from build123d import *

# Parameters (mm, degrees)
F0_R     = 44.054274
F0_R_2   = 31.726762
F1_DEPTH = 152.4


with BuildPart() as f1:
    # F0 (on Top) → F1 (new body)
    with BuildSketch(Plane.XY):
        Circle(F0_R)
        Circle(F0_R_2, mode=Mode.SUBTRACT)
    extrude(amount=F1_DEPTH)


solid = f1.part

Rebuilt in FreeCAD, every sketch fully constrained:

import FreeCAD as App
import Part
import Sketcher
from FreeCAD import Vector
Q = App.Units.Quantity

doc = App.newDocument("Part")
body = doc.addObject("PartDesign::Body", "Body")

# Sketch on XY plane
sketch1 = body.newObject("Sketcher::SketchObject", "Sketch")
sketch1.AttachmentSupport = (doc.getObject("XY_Plane"), [""])
sketch1.MapMode = "FlatFace"
sketch1.addGeometry([
    Part.Circle(Vector(0, 0, 0), Vector(0, 0, 1), 44.054274),
    Part.Circle(Vector(0, 0, 0), Vector(0, 0, 1), 31.726762),
], False)
sketch1.addConstraint([
    Sketcher.Constraint("Coincident", 0, 3, -1, 1),
    Sketcher.Constraint("Coincident", 1, 3, -1, 1),
    Sketcher.Constraint("Diameter", 0, 88.108548),
    Sketcher.Constraint("Diameter", 1, 63.453524),
])
pad1 = body.newObject("PartDesign::Pad", "Pad")
pad1.Profile = sketch1
pad1.Length = Q("6 in")

doc.recompute()
